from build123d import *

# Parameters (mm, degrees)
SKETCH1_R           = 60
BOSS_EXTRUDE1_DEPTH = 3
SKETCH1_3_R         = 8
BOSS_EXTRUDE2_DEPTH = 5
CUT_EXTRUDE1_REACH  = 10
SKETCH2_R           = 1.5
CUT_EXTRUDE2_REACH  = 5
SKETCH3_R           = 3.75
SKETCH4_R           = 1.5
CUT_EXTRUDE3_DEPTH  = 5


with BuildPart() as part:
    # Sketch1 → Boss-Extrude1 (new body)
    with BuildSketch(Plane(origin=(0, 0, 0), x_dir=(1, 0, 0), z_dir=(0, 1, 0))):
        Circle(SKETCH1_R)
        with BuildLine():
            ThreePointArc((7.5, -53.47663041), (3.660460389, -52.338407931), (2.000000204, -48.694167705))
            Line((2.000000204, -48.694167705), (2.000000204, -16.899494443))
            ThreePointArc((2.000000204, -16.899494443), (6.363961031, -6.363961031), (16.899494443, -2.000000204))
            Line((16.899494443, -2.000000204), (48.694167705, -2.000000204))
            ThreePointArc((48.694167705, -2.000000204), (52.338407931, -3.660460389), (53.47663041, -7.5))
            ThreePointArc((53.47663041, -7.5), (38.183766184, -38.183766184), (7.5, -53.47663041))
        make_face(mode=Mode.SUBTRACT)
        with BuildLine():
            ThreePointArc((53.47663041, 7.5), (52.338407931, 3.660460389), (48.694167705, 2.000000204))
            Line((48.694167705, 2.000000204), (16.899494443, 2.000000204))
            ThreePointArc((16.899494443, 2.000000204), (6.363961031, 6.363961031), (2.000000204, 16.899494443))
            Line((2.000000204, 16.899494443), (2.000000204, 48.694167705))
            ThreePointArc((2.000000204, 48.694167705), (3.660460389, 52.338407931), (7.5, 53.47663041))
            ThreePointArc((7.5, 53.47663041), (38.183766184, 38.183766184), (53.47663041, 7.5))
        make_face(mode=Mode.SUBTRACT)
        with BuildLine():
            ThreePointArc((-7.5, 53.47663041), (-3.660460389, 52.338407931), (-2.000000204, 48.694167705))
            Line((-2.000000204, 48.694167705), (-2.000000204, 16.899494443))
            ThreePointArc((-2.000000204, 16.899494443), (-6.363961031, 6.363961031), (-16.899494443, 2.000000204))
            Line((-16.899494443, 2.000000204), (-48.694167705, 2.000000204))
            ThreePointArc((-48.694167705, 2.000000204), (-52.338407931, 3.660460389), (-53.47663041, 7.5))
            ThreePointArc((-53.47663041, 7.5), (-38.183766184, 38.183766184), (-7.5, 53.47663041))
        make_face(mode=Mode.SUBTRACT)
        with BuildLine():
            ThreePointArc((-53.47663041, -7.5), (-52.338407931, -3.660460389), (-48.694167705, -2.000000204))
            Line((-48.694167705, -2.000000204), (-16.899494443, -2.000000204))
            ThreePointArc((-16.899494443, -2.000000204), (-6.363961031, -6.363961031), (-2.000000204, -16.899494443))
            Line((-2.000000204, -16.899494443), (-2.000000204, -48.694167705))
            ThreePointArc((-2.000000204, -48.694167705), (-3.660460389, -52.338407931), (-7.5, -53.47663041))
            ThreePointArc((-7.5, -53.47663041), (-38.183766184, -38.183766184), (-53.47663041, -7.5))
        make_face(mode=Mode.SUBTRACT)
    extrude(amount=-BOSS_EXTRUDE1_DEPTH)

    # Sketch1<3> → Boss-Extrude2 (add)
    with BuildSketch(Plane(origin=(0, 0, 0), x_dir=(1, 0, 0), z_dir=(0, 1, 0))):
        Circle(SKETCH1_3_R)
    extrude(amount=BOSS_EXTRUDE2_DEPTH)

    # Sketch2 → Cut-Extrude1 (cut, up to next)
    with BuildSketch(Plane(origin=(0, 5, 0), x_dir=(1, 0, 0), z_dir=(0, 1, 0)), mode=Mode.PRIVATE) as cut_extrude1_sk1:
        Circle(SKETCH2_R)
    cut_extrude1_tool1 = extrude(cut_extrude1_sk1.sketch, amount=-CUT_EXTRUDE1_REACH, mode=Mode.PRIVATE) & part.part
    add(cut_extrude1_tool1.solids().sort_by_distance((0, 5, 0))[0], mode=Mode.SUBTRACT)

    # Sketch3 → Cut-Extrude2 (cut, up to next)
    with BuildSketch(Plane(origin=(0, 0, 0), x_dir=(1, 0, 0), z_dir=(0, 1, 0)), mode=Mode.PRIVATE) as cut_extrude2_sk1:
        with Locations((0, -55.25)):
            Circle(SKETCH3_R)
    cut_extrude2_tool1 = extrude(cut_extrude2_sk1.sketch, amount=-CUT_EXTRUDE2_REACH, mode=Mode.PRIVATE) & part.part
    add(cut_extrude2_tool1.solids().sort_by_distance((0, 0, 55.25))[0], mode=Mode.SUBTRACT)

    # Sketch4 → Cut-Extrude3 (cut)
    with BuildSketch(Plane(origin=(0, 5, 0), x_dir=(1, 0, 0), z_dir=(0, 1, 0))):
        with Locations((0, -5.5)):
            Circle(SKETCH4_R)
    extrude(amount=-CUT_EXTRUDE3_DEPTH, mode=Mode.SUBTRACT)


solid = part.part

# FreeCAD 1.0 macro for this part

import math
import FreeCAD as App
import Part
import Sketcher

doc = App.newDocument("Part")
body = doc.addObject("PartDesign::Body", "Body")

sketch1 = doc.addObject("Sketcher::SketchObject", "Sketch")
body.addObject(sketch1)
sketch1.AttachmentSupport = (doc.XZ_Plane, [""])
sketch1.MapMode = "FlatFace"
sketch1.addGeometry([
    Part.Circle(App.Vector(0, 0, 0), App.Vector(0, 0, 1), 60),
    Part.ArcOfCircle(Part.Circle(App.Vector(0, 0, 0), App.Vector(0, 0, 1), 54), math.radians(97.983556), math.radians(172.016444)),
    Part.ArcOfCircle(Part.Circle(App.Vector(-48.694168, 6.829268, 0), App.Vector(0, 0, 1), 4.829268), math.radians(172.016444), math.radians(270)),
    Part.LineSegment(App.Vector(-48.694168, 2, 0), App.Vector(-16.899494, 2, 0)),
    Part.ArcOfCircle(Part.Circle(App.Vector(-16.899494, 16.899494, 0), App.Vector(0, 0, 1), 14.899494), math.radians(-90), math.radians(0)),
    Part.LineSegment(App.Vector(-2, 16.899494, 0), App.Vector(-2, 48.694168, 0)),
    Part.ArcOfCircle(Part.Circle(App.Vector(-6.829268, 48.694168, 0), App.Vector(0, 0, 1), 4.829268), math.radians(0), math.radians(97.983556)),
    Part.ArcOfCircle(Part.Circle(App.Vector(0, 0, 0), App.Vector(0, 0, 1), 54), math.radians(7.983556), math.radians(82.016444)),
    Part.ArcOfCircle(Part.Circle(App.Vector(6.829268, 48.694168, 0), App.Vector(0, 0, 1), 4.829268), math.radians(82.016444), math.radians(180)),
    Part.LineSegment(App.Vector(2, 48.694168, 0), App.Vector(2, 16.899494, 0)),
    Part.ArcOfCircle(Part.Circle(App.Vector(16.899494, 16.899494, 0), App.Vector(0, 0, 1), 14.899494), math.radians(-180), math.radians(-90)),
    Part.LineSegment(App.Vector(16.899494, 2, 0), App.Vector(48.694168, 2, 0)),
    Part.ArcOfCircle(Part.Circle(App.Vector(48.694168, 6.829268, 0), App.Vector(0, 0, 1), 4.829268), math.radians(-90), math.radians(7.983556)),
    Part.ArcOfCircle(Part.Circle(App.Vector(0, 0, 0), App.Vector(0, 0, 1), 54), math.radians(-172.016444), math.radians(-97.983556)),
    Part.ArcOfCircle(Part.Circle(App.Vector(-6.829268, -48.694168, 0), App.Vector(0, 0, 1), 4.829268), math.radians(-97.983556), math.radians(0)),
    Part.LineSegment(App.Vector(-2, -48.694168, 0), App.Vector(-2, -16.899494, 0)),
    Part.ArcOfCircle(Part.Circle(App.Vector(-16.899494, -16.899494, 0), App.Vector(0, 0, 1), 14.899494), math.radians(0), math.radians(90)),
    Part.LineSegment(App.Vector(-16.899494, -2, 0), App.Vector(-48.694168, -2, 0)),
    Part.ArcOfCircle(Part.Circle(App.Vector(-48.694168, -6.829268, 0), App.Vector(0, 0, 1), 4.829268), math.radians(90), math.radians(187.983556)),
    Part.ArcOfCircle(Part.Circle(App.Vector(0, 0, 0), App.Vector(0, 0, 1), 54), math.radians(-82.016444), math.radians(-7.983556)),
    Part.ArcOfCircle(Part.Circle(App.Vector(48.694168, -6.829268, 0), App.Vector(0, 0, 1), 4.829268), math.radians(-7.983556), math.radians(90)),
    Part.LineSegment(App.Vector(48.694168, -2, 0), App.Vector(16.899494, -2, 0)),
    Part.ArcOfCircle(Part.Circle(App.Vector(16.899494, -16.899494, 0), App.Vector(0, 0, 1), 14.899494), math.radians(90), math.radians(180)),
    Part.LineSegment(App.Vector(2, -16.899494, 0), App.Vector(2, -48.694168, 0)),
    Part.ArcOfCircle(Part.Circle(App.Vector(6.829268, -48.694168, 0), App.Vector(0, 0, 1), 4.829268), math.radians(180), math.radians(277.983556)),
], False)
sketch1.addConstraint([
    Sketcher.Constraint("Tangent", 1, 2, 2, 1),
    Sketcher.Constraint("Tangent", 2, 2, 3, 1),
    Sketcher.Constraint("Tangent", 3, 2, 4, 1),
    Sketcher.Constraint("Tangent", 4, 2, 5, 1),
    Sketcher.Constraint("Tangent", 5, 2, 6, 1),
    Sketcher.Constraint("Tangent", 6, 2, 1, 1),
    Sketcher.Constraint("Tangent", 7, 2, 8, 1),
    Sketcher.Constraint("Tangent", 8, 2, 9, 1),
    Sketcher.Constraint("Tangent", 9, 2, 10, 1),
    Sketcher.Constraint("Tangent", 10, 2, 11, 1),
    Sketcher.Constraint("Tangent", 11, 2, 12, 1),
    Sketcher.Constraint("Tangent", 12, 2, 7, 1),
    Sketcher.Constraint("Tangent", 13, 2, 14, 1),
    Sketcher.Constraint("Tangent", 14, 2, 15, 1),
    Sketcher.Constraint("Tangent", 15, 2, 16, 1),
    Sketcher.Constraint("Tangent", 16, 2, 17, 1),
    Sketcher.Constraint("Tangent", 17, 2, 18, 1),
    Sketcher.Constraint("Tangent", 18, 2, 13, 1),
    Sketcher.Constraint("Tangent", 19, 2, 20, 1),
    Sketcher.Constraint("Tangent", 20, 2, 21, 1),
    Sketcher.Constraint("Tangent", 21, 2, 22, 1),
    Sketcher.Constraint("Tangent", 22, 2, 23, 1),
    Sketcher.Constraint("Tangent", 23, 2, 24, 1),
    Sketcher.Constraint("Tangent", 24, 2, 19, 1),
    Sketcher.Constraint("Horizontal", 3),
    Sketcher.Constraint("Vertical", 5),
    Sketcher.Constraint("Vertical", 9),
    Sketcher.Constraint("Horizontal", 11),
    Sketcher.Constraint("Vertical", 15),
    Sketcher.Constraint("Horizontal", 17),
    Sketcher.Constraint("Horizontal", 21),
    Sketcher.Constraint("Vertical", 23),
    Sketcher.Constraint("Coincident", 0, 3, -1, 1),
    Sketcher.Constraint("Coincident", 1, 3, -1, 1),
    Sketcher.Constraint("Coincident", 7, 3, -1, 1),
    Sketcher.Constraint("Coincident", 13, 3, -1, 1),
    Sketcher.Constraint("Coincident", 19, 3, -1, 1),
    Sketcher.Constraint("Equal", 2, 6),
    Sketcher.Constraint("Equal", 1, 7),
    Sketcher.Constraint("Equal", 6, 8),
    Sketcher.Constraint("Equal", 4, 10),
    Sketcher.Constraint("Equal", 8, 12),
    Sketcher.Constraint("Equal", 7, 13),
    Sketcher.Constraint("Equal", 12, 14),
    Sketcher.Constraint("Equal", 10, 16),
    Sketcher.Constraint("Equal", 14, 18),
    Sketcher.Constraint("Equal", 13, 19),
    Sketcher.Constraint("Equal", 18, 20),
    Sketcher.Constraint("Equal", 16, 22),
    Sketcher.Constraint("Equal", 20, 24),
    Sketcher.Constraint("Symmetric", 10, 3, 16, 3, -1, 1),
    Sketcher.Constraint("Symmetric", 4, 3, 22, 3, -1, 1),
    Sketcher.Constraint("Symmetric", 4, 3, 10, 3, -2),
    Sketcher.Constraint("Equal", 21, 5),
    Sketcher.Constraint("Diameter", 0, 120.0),
    Sketcher.Constraint("Radius", 1, 54.0),
    Sketcher.Constraint("DistanceY", -1, 1, 2, 2, 2.0),
    Sketcher.Constraint("DistanceX", 6, 2, 7, 2, 15.0),
    Sketcher.Constraint("Radius", 4, 14.899494),
])
pad1 = doc.addObject("PartDesign::Pad", "Pad")
body.addObject(pad1)
pad1.Profile = sketch1
pad1.Length = 3

sketch2 = doc.addObject("Sketcher::SketchObject", "Sketch001")
body.addObject(sketch2)
sketch2.AttachmentSupport = (doc.XZ_Plane, [""])
sketch2.MapMode = "FlatFace"
sketch2.addGeometry(Part.Circle(App.Vector(0, 0, 0), App.Vector(0, 0, 1), 8), False)
sketch2.addConstraint([
    Sketcher.Constraint("Coincident", 0, 3, -1, 1),
    Sketcher.Constraint("Diameter", 0, 16.0),
])
pad2 = doc.addObject("PartDesign::Pad", "Pad001")
body.addObject(pad2)
pad2.Profile = sketch2
pad2.Length = 5
pad2.Reversed = True

sketch3 = doc.addObject("Sketcher::SketchObject", "Sketch002")
body.addObject(sketch3)
sketch3.AttachmentSupport = (doc.XZ_Plane, [""])
sketch3.MapMode = "FlatFace"
sketch3.AttachmentOffset = App.Placement(App.Vector(0, 0, -5), App.Rotation())
sketch3.addGeometry(Part.Circle(App.Vector(0, 0, 0), App.Vector(0, 0, 1), 1.5), False)
sketch3.addConstraint([
    Sketcher.Constraint("Coincident", 0, 3, -1, 1),
    Sketcher.Constraint("Diameter", 0, 3.0),
])
pocket1 = doc.addObject("PartDesign::Pocket", "Pocket")
body.addObject(pocket1)
pocket1.Profile = sketch3
pocket1.Type = "UpToFirst"
pocket1.Reversed = True

sketch4 = doc.addObject("Sketcher::SketchObject", "Sketch003")
body.addObject(sketch4)
sketch4.AttachmentSupport = (doc.XZ_Plane, [""])
sketch4.MapMode = "FlatFace"
sketch4.addGeometry(Part.Circle(App.Vector(0, 55.25, 0), App.Vector(0, 0, 1), 3.75), False)
sketch4.addConstraint([
    Sketcher.Constraint("PointOnObject", 0, 3, -2),
    Sketcher.Constraint("Diameter", 0, 7.5),
    Sketcher.Constraint("DistanceY", -1, 1, 0, 3, 55.25),
])
pocket2 = doc.addObject("PartDesign::Pocket", "Pocket001")
body.addObject(pocket2)
pocket2.Profile = sketch4
pocket2.Type = "UpToFirst"
pocket2.Reversed = True

sketch5 = doc.addObject("Sketcher::SketchObject", "Sketch004")
body.addObject(sketch5)
sketch5.AttachmentSupport = (doc.XZ_Plane, [""])
sketch5.MapMode = "FlatFace"
sketch5.AttachmentOffset = App.Placement(App.Vector(0, 0, -5), App.Rotation())
sketch5.addGeometry(Part.Circle(App.Vector(0, 5.5, 0), App.Vector(0, 0, 1), 1.5), False)
sketch5.addConstraint([
    Sketcher.Constraint("PointOnObject", 0, 3, -2),
    Sketcher.Constraint("Diameter", 0, 3.0),
    Sketcher.Constraint("DistanceY", -1, 1, 0, 3, 5.5),
])
pocket3 = doc.addObject("PartDesign::Pocket", "Pocket002")
body.addObject(pocket3)
pocket3.Profile = sketch5
pocket3.Length = 5
pocket3.Reversed = True

doc.recompute()
